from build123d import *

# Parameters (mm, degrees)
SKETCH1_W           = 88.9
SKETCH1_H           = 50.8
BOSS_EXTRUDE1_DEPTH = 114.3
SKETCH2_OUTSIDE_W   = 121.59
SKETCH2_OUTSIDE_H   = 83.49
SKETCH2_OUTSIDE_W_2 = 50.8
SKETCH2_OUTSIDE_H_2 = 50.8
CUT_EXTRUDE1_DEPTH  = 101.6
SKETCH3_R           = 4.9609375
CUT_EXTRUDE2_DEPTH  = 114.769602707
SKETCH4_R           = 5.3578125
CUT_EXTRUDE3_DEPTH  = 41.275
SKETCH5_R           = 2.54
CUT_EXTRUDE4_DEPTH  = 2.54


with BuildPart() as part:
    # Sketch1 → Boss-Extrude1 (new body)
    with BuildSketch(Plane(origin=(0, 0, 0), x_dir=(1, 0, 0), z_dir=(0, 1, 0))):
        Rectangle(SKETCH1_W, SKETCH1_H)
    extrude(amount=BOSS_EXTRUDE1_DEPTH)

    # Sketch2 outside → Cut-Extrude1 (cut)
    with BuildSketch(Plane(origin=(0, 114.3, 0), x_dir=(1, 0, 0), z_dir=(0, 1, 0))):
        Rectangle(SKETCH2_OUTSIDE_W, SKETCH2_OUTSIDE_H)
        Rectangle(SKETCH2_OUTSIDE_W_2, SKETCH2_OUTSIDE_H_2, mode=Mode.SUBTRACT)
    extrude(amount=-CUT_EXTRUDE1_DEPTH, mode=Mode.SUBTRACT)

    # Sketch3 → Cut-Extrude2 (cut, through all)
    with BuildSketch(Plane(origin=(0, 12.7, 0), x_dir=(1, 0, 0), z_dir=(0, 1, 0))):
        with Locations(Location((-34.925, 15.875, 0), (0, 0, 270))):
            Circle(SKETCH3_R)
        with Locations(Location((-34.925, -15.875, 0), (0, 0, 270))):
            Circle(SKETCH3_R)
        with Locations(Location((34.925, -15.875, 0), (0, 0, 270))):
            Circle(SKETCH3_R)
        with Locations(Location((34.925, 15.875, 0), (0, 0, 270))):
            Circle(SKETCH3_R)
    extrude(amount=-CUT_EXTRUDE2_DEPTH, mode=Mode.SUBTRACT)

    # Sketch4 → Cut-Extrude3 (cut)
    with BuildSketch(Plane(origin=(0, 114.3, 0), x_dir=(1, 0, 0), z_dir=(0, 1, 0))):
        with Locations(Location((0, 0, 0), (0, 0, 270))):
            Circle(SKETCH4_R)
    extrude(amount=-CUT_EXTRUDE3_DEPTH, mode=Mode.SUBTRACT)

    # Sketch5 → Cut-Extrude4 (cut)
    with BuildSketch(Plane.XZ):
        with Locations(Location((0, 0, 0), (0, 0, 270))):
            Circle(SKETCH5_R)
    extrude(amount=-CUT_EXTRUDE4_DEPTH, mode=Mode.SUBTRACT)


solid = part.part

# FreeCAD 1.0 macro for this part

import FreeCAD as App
import Part
import Sketcher
Q = App.Units.Quantity


def add_polygon(sketch, points):
    """Adds a closed chain of lines whose ends are joined by coincident constraints."""
    first, n = sketch.GeometryCount, len(points)
    for a, b in zip(points, points[1:] + points[:1]):
        sketch.addGeometry(Part.LineSegment(App.Vector(*a, 0), App.Vector(*b, 0)), False)
    for i in range(n):
        sketch.addConstraint(Sketcher.Constraint("Coincident", first + i, 2, first + (i + 1) % n, 1))

doc = App.newDocument("Part")
body = doc.addObject("PartDesign::Body", "Body")

# Sketch on XZ plane
sketch1 = body.newObject("Sketcher::SketchObject", "Sketch")
sketch1.AttachmentSupport = (doc.getObject("XZ_Plane"), [""])
sketch1.MapMode = "FlatFace"
add_polygon(sketch1, [(-44, -25), (-44, 25), (44, 25), (44, -25)])  # lines 0-3
sketch1.addConstraint(Sketcher.Constraint("Vertical", 0))
sketch1.addConstraint(Sketcher.Constraint("Horizontal", 1))
sketch1.addConstraint(Sketcher.Constraint("Vertical", 2))
sketch1.addConstraint(Sketcher.Constraint("Horizontal", 3))
sketch1.addConstraint(Sketcher.Constraint("Symmetric", 0, 2, 2, 2, -1, 1))
sketch1.addConstraint(Sketcher.Constraint("DistanceY", 0, 1, 0, 2, Q("2 in")))
sketch1.addConstraint(Sketcher.Constraint("DistanceX", 1, 1, 1, 2, Q("3.5 in")))
pad1 = body.newObject("PartDesign::Pad", "Pad")
pad1.Profile = sketch1
pad1.Length = Q("4.5 in")
pad1.Reversed = True

# Sketch on XZ plane
sketch2 = body.newObject("Sketcher::SketchObject", "Sketch001")
sketch2.AttachmentSupport = (doc.getObject("XZ_Plane"), [""])
sketch2.MapMode = "FlatFace"
sketch2.AttachmentOffset = App.Placement(App.Vector(0, 0, -4.5 * 25.4), App.Rotation())
add_polygon(sketch2, [(-61, -42), (-61, 42), (61, 42), (61, -42)])  # lines 0-3
add_polygon(sketch2, [(25, 25), (-25, 25), (-25, -25), (25, -25)])  # lines 4-7
sketch2.addConstraint(Sketcher.Constraint("Vertical", 0))
sketch2.addConstraint(Sketcher.Constraint("Horizontal", 1))
sketch2.addConstraint(Sketcher.Constraint("Vertical", 2))
sketch2.addConstraint(Sketcher.Constraint("Horizontal", 3))
sketch2.addConstraint(Sketcher.Constraint("Horizontal", 4))
sketch2.addConstraint(Sketcher.Constraint("Vertical", 5))
sketch2.addConstraint(Sketcher.Constraint("Horizontal", 6))
sketch2.addConstraint(Sketcher.Constraint("Vertical", 7))
sketch2.addConstraint(Sketcher.Constraint("Symmetric", 0, 2, 2, 2, -1, 1))
sketch2.addConstraint(Sketcher.Constraint("Symmetric", 4, 2, 6, 2, -1, 1))
sketch2.addConstraint(Sketcher.Constraint("Equal", 6, 5))
sketch2.addConstraint(Sketcher.Constraint("DistanceX", 4, 2, 4, 1, Q("2 in")))
sketch2.addConstraint(Sketcher.Constraint("DistanceX", 1, 1, 1, 2, 121.59))
sketch2.addConstraint(Sketcher.Constraint("DistanceY", 0, 1, 0, 2, 83.49))
pocket1 = body.newObject("PartDesign::Pocket", "Pocket")
pocket1.Profile = sketch2
pocket1.Length = Q("4 in")
pocket1.Reversed = True

# Sketch on XZ plane
sketch3 = body.newObject("Sketcher::SketchObject", "Sketch002")
sketch3.AttachmentSupport = (doc.getObject("XZ_Plane"), [""])
sketch3.MapMode = "FlatFace"
sketch3.AttachmentOffset = App.Placement(App.Vector(0, 0, -0.5 * 25.4), App.Rotation())
sketch3.addGeometry(Part.Circle(App.Vector(-34.9, -15.9, 0), App.Vector(0, 0, 1), 5), False)
sketch3.addGeometry(Part.Circle(App.Vector(-34.9, 15.9, 0), App.Vector(0, 0, 1), 5), False)
sketch3.addGeometry(Part.Circle(App.Vector(34.9, 15.9, 0), App.Vector(0, 0, 1), 5), False)
sketch3.addGeometry(Part.Circle(App.Vector(34.9, -15.9, 0), App.Vector(0, 0, 1), 5), False)
sketch3.addConstraint(Sketcher.Constraint("Equal", 0, 1))
sketch3.addConstraint(Sketcher.Constraint("Equal", 1, 2))
sketch3.addConstraint(Sketcher.Constraint("Equal", 2, 3))
sketch3.addConstraint(Sketcher.Constraint("Symmetric", 0, 3, 2, 3, -1, 1))
sketch3.addConstraint(Sketcher.Constraint("Symmetric", 1, 3, 3, 3, -1, 1))
sketch3.addConstraint(Sketcher.Constraint("Symmetric", 1, 3, 2, 3, -2))
sketch3.addConstraint(Sketcher.Constraint("Diameter", 0, Q("0.390625 in")))
sketch3.addConstraint(Sketcher.Constraint("DistanceY", 0, 3, 1, 3, Q("1.25 in")))
sketch3.addConstraint(Sketcher.Constraint("DistanceX", 1, 3, 2, 3, Q("2.75 in")))
pocket2 = body.newObject("PartDesign::Pocket", "Pocket001")
pocket2.Profile = sketch3
pocket2.Type = "ThroughAll"
pocket2.Reversed = True

# Sketch on XZ plane
sketch4 = body.newObject("Sketcher::SketchObject", "Sketch003")
sketch4.AttachmentSupport = (doc.getObject("XZ_Plane"), [""])
sketch4.MapMode = "FlatFace"
sketch4.AttachmentOffset = App.Placement(App.Vector(0, 0, -4.5 * 25.4), App.Rotation())
sketch4.addGeometry(Part.Circle(App.Vector(0, 0, 0), App.Vector(0, 0, 1), 5), False)
sketch4.addConstraint(Sketcher.Constraint("Coincident", 0, 3, -1, 1))
sketch4.addConstraint(Sketcher.Constraint("Diameter", 0, Q("0.421875 in")))
pocket3 = body.newObject("PartDesign::Pocket", "Pocket002")
pocket3.Profile = sketch4
pocket3.Length = Q("1.625 in")
pocket3.Reversed = True

# Sketch on XZ plane
sketch5 = body.newObject("Sketcher::SketchObject", "Sketch004")
sketch5.AttachmentSupport = (doc.getObject("XZ_Plane"), [""])
sketch5.MapMode = "FlatFace"
sketch5.addGeometry(Part.Circle(App.Vector(0, 0, 0), App.Vector(0, 0, 1), 2.5), False)
sketch5.addConstraint(Sketcher.Constraint("Coincident", 0, 3, -1, 1))
sketch5.addConstraint(Sketcher.Constraint("Diameter", 0, Q("0.2 in")))
pocket4 = body.newObject("PartDesign::Pocket", "Pocket003")
pocket4.Profile = sketch5
pocket4.Length = Q("0.1 in")

doc.recompute()
